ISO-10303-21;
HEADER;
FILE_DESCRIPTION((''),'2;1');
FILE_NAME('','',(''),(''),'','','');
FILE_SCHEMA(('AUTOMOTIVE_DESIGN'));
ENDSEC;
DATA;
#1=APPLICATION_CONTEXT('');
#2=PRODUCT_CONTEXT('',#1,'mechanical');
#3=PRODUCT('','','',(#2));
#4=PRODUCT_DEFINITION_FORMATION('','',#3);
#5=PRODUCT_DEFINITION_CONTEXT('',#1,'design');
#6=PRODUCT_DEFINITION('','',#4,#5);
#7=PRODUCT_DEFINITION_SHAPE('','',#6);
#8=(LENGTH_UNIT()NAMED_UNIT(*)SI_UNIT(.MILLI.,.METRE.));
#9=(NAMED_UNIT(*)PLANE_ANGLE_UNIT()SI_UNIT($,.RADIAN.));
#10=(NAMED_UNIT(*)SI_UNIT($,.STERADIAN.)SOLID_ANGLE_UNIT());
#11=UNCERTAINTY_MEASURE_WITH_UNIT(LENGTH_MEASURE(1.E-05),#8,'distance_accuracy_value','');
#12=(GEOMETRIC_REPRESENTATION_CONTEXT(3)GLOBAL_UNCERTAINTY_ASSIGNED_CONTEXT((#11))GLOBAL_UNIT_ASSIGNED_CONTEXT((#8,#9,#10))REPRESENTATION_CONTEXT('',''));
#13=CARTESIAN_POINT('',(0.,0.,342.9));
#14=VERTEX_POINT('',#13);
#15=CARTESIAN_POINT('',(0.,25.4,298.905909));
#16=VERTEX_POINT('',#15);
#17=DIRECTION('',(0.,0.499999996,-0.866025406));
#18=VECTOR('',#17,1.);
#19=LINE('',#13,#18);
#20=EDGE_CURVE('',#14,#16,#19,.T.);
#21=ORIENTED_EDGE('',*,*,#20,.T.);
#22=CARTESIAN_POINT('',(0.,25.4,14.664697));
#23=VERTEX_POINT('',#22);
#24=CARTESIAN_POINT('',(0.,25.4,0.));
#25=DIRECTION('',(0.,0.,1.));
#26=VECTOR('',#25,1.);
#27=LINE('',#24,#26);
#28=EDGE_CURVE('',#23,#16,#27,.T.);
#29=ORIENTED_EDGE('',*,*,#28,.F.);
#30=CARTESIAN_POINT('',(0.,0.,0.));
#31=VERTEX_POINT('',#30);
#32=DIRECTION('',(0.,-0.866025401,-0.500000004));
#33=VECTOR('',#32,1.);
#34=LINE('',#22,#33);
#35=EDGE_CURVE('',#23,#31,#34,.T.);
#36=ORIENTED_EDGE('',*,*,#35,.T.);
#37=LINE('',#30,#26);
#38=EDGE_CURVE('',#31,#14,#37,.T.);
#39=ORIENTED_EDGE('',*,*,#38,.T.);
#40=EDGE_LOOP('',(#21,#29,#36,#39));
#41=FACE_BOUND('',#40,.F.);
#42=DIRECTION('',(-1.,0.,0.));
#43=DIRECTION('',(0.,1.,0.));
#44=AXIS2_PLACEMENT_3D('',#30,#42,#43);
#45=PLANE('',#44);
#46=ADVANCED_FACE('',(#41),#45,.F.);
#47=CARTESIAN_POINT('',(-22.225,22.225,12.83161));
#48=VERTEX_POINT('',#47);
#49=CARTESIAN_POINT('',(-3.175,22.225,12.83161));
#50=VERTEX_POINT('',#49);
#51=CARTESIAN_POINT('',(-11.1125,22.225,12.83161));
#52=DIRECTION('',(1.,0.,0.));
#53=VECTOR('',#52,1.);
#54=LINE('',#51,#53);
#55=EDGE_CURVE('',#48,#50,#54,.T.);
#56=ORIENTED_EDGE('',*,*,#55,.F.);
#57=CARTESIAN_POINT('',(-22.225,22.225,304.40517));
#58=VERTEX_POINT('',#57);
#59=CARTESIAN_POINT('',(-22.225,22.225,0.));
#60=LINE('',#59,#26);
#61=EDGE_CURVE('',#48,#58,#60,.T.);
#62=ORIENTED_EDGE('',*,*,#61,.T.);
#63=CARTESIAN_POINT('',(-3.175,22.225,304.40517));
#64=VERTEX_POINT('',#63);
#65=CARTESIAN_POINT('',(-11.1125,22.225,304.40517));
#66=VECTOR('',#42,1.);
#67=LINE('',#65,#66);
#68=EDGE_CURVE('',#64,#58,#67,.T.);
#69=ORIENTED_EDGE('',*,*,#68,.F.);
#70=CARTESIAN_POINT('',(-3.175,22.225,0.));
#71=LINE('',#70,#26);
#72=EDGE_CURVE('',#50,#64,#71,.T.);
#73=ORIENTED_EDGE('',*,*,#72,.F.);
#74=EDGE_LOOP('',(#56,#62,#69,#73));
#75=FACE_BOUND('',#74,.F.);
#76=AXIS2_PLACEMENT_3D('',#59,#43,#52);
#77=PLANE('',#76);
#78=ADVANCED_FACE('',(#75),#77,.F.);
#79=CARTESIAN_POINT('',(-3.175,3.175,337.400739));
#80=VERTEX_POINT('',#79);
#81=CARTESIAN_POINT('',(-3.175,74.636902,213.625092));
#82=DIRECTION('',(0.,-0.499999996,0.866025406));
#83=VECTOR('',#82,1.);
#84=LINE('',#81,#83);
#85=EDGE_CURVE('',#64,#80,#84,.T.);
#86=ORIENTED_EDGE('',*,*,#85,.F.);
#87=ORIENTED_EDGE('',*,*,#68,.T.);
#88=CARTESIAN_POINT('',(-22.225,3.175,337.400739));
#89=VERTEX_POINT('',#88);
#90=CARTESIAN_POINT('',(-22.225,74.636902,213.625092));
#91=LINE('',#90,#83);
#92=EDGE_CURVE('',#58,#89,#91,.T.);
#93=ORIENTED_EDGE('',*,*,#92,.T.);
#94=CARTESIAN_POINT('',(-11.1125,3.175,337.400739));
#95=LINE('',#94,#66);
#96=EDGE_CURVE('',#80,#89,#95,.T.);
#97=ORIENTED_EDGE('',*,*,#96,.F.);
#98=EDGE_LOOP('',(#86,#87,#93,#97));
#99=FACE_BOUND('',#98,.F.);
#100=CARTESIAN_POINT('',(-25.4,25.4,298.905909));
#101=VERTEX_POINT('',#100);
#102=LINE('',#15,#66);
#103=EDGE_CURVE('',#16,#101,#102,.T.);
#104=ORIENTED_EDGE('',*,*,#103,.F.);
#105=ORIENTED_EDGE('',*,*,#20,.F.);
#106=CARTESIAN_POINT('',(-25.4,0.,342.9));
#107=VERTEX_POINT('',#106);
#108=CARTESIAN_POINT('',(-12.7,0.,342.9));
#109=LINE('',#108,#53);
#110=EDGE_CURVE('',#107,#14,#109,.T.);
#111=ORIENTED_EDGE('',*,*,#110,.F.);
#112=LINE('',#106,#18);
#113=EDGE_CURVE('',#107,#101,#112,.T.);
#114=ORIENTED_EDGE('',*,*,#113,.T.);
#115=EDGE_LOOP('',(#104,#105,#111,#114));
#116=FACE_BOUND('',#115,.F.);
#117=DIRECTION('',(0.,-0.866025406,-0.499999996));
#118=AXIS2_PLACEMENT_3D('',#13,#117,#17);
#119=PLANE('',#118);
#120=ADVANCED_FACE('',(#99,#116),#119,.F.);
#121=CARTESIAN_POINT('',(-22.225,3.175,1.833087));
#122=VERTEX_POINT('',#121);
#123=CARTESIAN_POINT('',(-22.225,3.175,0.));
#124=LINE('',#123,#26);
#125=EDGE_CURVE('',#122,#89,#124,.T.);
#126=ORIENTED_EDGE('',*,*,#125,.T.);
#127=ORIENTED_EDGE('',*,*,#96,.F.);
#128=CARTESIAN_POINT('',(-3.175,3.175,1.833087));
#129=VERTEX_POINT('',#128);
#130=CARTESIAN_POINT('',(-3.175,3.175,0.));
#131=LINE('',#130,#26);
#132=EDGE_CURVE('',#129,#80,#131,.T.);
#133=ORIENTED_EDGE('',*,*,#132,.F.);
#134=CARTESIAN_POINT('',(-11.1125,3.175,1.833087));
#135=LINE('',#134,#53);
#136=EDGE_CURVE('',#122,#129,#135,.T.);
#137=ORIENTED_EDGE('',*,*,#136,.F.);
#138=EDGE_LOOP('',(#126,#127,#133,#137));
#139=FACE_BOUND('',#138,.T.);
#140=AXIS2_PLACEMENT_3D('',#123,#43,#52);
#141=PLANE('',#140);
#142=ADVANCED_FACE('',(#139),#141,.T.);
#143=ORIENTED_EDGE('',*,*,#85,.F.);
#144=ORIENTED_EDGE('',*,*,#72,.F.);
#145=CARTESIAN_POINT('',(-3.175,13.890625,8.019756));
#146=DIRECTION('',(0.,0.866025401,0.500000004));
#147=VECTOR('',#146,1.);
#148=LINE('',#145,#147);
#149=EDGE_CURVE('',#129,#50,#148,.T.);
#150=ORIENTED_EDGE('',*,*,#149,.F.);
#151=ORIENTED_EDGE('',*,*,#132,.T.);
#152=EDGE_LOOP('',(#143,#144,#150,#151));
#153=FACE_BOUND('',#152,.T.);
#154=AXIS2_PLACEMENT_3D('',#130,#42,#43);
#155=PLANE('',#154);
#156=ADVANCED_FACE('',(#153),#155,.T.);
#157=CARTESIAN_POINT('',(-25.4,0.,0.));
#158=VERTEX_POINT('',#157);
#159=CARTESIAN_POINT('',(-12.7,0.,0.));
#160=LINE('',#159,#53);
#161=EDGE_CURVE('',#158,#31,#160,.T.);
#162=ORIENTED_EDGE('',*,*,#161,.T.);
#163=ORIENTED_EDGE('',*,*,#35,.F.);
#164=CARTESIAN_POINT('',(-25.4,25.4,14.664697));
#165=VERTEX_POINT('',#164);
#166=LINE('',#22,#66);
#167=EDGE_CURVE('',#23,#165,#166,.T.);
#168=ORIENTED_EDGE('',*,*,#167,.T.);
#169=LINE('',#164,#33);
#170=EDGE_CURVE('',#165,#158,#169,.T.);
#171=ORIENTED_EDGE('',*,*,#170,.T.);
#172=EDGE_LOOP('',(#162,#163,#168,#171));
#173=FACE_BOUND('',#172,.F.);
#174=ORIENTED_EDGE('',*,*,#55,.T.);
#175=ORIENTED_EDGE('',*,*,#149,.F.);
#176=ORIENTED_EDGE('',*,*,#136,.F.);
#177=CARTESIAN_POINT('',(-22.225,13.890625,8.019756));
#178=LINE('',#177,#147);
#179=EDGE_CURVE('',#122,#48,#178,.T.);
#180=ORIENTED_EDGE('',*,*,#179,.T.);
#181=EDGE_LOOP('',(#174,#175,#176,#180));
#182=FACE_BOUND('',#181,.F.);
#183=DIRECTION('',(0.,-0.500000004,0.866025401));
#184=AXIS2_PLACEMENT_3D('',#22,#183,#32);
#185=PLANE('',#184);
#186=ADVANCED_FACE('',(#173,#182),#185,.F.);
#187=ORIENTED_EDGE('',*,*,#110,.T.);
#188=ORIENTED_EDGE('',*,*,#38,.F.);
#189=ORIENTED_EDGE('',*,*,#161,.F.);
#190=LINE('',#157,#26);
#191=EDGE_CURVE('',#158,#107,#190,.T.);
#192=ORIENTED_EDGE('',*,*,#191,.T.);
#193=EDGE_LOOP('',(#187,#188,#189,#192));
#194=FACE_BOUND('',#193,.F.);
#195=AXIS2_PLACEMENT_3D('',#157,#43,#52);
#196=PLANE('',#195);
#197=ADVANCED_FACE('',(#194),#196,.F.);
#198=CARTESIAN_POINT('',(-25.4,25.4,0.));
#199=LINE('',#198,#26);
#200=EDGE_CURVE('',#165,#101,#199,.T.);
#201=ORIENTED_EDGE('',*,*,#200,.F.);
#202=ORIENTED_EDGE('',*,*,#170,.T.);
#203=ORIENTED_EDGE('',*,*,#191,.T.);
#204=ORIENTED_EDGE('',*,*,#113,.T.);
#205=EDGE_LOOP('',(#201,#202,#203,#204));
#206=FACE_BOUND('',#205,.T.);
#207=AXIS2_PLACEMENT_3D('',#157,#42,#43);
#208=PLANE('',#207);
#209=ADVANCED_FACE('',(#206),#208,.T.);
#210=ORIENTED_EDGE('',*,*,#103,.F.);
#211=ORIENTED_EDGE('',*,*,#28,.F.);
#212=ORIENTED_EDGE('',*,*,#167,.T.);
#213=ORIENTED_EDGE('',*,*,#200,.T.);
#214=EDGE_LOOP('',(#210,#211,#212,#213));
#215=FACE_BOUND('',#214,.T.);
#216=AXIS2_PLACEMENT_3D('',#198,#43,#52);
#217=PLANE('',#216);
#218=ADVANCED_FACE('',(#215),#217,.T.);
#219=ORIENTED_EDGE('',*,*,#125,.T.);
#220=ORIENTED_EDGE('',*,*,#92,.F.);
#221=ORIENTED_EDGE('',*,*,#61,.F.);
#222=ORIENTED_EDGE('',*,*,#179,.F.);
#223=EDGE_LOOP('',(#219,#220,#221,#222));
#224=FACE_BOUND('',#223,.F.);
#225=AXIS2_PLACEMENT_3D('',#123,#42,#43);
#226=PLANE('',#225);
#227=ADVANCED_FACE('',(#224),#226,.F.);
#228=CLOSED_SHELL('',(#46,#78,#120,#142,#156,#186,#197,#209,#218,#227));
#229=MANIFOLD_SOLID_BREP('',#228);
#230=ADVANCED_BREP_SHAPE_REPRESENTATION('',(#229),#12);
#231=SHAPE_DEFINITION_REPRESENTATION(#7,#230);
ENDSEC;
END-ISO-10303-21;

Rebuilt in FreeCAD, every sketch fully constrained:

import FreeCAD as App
import Part
import Sketcher

V = App.Vector
Q = App.Units.Quantity


def add_polygon(sketch, points):
    """Adds a closed chain of lines whose ends are joined by coincident constraints."""
    first, n = sketch.GeometryCount, len(points)
    for a, b in zip(points, points[1:] + points[:1]):
        sketch.addGeometry(Part.LineSegment(App.Vector(*a, 0), App.Vector(*b, 0)), False)
    for i in range(n):
        sketch.addConstraint(Sketcher.Constraint("Coincident", first + i, 2, first + (i + 1) % n, 1))

doc = App.newDocument("Part")
params = doc.addObject("Spreadsheet::Sheet", "Params")
for row, (alias, value) in enumerate([
    ("sketch1_width", "1 in"),
    ("sketch1_width2", "0.75 in"),
    ("pad1_length", "13.5 in"),
    ("sketch2_width", "1 in"),
    ("sketch2_length", "2 in"),
    ("pocket1_length", "1 in"),
], start=1):
    params.set(f"A{row}", alias)
    params.set(f"B{row}", "=" + value)
    params.setAlias(f"B{row}", alias)

body = doc.addObject("PartDesign::Body", "Body")

sketch1 = body.newObject("Sketcher::SketchObject", "Sketch")
sketch1.AttachmentSupport = (doc.getObject("XY_Plane"), [""])
sketch1.MapMode = "FlatFace"
add_polygon(sketch1, [(-25, 25), (-25, 0), (0, 0), (0, 25)])
add_polygon(sketch1, [(-3, 3), (-22, 3), (-22, 22), (-3, 22)])
sketch1.addConstraint([
    Sketcher.Constraint("Vertical", 0),
    Sketcher.Constraint("Horizontal", 1),
    Sketcher.Constraint("Vertical", 2),
    Sketcher.Constraint("Horizontal", 3),
    Sketcher.Constraint("Horizontal", 4),
    Sketcher.Constraint("Vertical", 5),
    Sketcher.Constraint("Horizontal", 6),
    Sketcher.Constraint("Vertical", 7),
    Sketcher.Constraint("Coincident", 1, 2, -1, 1),
    Sketcher.Constraint("Equal", 3, 0),
    Sketcher.Constraint("Equal", 6, 5),
    Sketcher.Constraint("DistanceX", 1, 1, 1, 2, Q("1 in")),
    Sketcher.Constraint("DistanceX", 4, 2, 4, 1, Q("0.75 in")),
    Sketcher.Constraint("DistanceX", 4, 2, -1, 1, Q("0.875 in")),
    Sketcher.Constraint("DistanceY", -1, 1, 4, 2, Q("0.125 in")),
])
sketch1.setExpression("Constraints[19]", "Params.sketch1_width")
sketch1.setExpression("Constraints[20]", "Params.sketch1_width2")
pad1 = body.newObject("PartDesign::Pad", "Pad")
pad1.Profile = sketch1
pad1.setExpression("Length", "Params.pad1_length")

sketch2 = body.newObject("Sketcher::SketchObject", "Sketch001")
sketch2.AttachmentSupport = (doc.getObject("YZ_Plane"), [""])
sketch2.MapMode = "FlatFace"
add_polygon(sketch2, [(25, 343), (0, 343), (25, 299)])
add_polygon(sketch2, [(25, 15), (0, 0), (25, 0)])
sketch2.addConstraint([
    Sketcher.Constraint("Horizontal", 0),
    Sketcher.Constraint("Vertical", 2),
    Sketcher.Constraint("Horizontal", 4),
    Sketcher.Constraint("Vertical", 5),
    Sketcher.Constraint("Coincident", 3, 2, -1, 1),
    Sketcher.Constraint("PointOnObject", 0, 2, -2),
    Sketcher.Constraint("Perpendicular", 1, 3),
    Sketcher.Constraint("Vertical", 2, 2, 4, 2),
    Sketcher.Constraint("DistanceX", 0, 2, 0, 1, Q("1 in")),
    Sketcher.Constraint("Distance", 1, Q("2 in")),
    Sketcher.Constraint("DistanceY", -1, 1, 0, 2, Q("13.5 in")),
])
sketch2.setExpression("Constraints[14]", "Params.sketch2_width")
sketch2.setExpression("Constraints[15]", "Params.sketch2_length")
pocket1 = body.newObject("PartDesign::Pocket", "Pocket")
pocket1.Profile = sketch2
pocket1.setExpression("Length", "Params.pocket1_length")

doc.recompute()
